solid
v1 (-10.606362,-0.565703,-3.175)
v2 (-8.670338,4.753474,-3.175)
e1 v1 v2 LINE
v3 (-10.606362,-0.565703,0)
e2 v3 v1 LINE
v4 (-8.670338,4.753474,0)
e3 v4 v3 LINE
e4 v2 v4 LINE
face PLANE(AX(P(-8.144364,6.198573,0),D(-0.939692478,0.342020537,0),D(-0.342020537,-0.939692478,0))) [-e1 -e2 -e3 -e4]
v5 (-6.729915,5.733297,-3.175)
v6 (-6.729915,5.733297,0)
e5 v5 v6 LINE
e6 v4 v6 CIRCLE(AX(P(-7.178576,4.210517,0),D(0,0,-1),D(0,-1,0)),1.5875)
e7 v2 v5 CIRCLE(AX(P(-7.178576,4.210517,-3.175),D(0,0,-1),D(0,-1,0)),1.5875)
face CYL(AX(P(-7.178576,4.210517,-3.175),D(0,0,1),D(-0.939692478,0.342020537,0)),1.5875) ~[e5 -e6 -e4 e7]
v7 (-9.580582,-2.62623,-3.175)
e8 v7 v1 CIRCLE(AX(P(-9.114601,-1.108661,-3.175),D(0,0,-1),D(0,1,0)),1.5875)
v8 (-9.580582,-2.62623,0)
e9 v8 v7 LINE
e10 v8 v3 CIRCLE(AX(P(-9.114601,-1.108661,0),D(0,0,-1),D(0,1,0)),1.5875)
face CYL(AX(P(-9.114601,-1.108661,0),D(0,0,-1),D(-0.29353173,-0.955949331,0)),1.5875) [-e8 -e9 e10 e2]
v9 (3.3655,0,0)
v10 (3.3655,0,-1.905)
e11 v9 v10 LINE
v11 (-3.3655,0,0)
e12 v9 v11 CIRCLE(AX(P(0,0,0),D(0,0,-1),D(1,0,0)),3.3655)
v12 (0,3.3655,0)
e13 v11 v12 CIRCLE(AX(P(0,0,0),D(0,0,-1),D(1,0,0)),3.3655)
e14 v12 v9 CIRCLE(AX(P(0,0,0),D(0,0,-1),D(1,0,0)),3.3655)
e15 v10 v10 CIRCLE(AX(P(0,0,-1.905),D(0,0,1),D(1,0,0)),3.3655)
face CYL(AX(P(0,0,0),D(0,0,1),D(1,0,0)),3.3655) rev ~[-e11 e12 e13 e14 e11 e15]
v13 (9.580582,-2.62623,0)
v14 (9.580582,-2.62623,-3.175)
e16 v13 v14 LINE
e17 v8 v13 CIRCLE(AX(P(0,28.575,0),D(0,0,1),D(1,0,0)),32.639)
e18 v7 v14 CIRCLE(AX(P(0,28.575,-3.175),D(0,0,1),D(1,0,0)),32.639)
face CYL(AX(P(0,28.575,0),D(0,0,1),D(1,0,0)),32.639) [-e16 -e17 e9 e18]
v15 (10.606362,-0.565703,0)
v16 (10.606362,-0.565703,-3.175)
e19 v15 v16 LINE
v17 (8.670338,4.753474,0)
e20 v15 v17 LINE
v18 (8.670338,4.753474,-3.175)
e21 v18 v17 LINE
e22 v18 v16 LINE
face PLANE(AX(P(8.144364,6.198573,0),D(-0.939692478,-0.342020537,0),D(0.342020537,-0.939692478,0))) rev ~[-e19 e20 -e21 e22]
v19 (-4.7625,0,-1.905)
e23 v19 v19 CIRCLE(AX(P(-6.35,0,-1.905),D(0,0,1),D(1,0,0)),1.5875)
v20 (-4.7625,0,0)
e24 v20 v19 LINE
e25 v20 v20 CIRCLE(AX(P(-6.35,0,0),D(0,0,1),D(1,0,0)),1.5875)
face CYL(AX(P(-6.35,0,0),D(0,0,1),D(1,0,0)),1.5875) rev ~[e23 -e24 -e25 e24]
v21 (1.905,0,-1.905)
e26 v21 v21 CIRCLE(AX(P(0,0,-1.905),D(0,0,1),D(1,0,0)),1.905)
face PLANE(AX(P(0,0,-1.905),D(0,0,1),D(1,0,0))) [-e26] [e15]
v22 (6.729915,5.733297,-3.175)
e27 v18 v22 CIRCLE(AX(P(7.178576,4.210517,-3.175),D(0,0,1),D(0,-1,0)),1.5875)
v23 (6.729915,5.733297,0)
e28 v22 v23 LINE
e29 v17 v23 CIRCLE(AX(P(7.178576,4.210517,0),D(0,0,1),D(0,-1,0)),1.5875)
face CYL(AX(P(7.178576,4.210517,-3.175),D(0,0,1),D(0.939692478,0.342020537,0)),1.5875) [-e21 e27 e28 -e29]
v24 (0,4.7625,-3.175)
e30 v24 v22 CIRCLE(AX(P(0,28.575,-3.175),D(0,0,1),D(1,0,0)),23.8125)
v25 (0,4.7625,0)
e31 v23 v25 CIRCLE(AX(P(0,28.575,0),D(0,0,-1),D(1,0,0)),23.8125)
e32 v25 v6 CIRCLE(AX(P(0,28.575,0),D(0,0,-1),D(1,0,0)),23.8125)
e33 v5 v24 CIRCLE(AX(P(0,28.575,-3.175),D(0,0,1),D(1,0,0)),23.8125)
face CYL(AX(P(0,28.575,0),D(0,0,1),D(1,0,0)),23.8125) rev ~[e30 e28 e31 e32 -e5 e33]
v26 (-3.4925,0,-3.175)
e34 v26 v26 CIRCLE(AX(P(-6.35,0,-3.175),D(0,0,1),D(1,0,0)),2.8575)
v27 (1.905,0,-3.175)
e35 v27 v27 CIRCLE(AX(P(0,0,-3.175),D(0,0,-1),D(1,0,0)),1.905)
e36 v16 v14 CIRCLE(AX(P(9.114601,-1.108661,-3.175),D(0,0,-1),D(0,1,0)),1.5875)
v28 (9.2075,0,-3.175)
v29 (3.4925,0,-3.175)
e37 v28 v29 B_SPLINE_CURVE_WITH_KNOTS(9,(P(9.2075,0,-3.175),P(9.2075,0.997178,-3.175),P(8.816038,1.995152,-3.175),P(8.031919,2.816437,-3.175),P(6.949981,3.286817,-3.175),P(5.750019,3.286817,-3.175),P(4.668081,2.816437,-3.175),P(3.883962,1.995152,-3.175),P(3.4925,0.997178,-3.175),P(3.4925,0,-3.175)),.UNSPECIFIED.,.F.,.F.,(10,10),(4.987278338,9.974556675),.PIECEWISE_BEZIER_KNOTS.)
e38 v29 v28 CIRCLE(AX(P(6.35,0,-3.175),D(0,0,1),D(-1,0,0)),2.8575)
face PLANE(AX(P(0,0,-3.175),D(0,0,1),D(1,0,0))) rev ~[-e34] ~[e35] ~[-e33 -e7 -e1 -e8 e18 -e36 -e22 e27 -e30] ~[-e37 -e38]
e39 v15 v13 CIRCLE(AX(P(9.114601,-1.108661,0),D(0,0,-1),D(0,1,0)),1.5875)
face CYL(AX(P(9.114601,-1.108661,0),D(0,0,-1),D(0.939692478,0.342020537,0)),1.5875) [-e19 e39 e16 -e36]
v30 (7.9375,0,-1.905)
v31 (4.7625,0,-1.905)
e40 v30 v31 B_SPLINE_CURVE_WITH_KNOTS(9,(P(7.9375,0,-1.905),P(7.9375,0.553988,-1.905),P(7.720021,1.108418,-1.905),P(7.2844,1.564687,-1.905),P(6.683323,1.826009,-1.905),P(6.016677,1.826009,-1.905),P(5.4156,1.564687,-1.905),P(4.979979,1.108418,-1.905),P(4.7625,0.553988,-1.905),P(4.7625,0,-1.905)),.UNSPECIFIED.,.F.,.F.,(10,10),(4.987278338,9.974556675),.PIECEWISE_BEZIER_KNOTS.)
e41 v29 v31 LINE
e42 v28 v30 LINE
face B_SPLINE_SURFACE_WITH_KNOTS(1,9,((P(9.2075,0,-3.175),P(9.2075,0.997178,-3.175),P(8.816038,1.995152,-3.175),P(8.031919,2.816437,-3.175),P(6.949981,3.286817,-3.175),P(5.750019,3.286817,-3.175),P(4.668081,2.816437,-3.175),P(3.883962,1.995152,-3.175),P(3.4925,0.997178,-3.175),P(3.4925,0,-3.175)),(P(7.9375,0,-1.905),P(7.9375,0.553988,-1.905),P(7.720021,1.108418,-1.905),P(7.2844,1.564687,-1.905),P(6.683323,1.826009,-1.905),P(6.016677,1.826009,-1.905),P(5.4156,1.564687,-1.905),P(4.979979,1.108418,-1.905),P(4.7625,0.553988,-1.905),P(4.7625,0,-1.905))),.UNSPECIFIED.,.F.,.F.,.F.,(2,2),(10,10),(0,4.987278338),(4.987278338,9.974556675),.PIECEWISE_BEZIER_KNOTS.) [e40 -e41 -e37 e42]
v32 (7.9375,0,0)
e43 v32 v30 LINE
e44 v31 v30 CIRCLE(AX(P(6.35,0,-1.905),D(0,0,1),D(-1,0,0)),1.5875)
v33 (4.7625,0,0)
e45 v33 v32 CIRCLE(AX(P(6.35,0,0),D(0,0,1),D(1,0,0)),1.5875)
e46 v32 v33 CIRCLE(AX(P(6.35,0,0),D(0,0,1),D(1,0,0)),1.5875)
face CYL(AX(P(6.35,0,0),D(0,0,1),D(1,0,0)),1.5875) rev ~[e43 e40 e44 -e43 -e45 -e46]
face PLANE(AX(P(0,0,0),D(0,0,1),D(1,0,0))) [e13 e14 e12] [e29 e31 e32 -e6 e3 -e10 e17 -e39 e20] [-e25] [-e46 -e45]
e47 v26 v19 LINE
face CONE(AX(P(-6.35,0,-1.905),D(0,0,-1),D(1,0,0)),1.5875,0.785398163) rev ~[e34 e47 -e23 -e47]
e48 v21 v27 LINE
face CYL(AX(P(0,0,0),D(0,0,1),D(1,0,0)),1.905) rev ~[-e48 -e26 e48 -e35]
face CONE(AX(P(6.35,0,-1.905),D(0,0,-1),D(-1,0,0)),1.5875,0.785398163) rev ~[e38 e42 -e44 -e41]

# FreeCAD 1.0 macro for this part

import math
import FreeCAD as App
import Part
import Sketcher
Q = App.Units.Quantity


def edges_at(feature, points):
    """Names of the edges that pass closest to the given points."""
    edges = feature.Shape.Edges
    near = lambda p: min(range(len(edges)), key=lambda i: edges[i].distToShape(Part.Vertex(*p))[0])
    return sorted({f"Edge{near(p) + 1}" for p in points})

doc = App.newDocument("Part")
body = doc.addObject("PartDesign::Body", "Body")

sketch1 = body.newObject("Sketcher::SketchObject", "Sketch")
sketch1.AttachmentSupport = (doc.getObject("XY_Plane"), [""])
sketch1.MapMode = "FlatFace"
sketch1.addGeometry([
    Part.LineSegment(App.Vector(11.2, -2.1, 0), App.Vector(0, 28.6, 0)),
    Part.LineSegment(App.Vector(0, 28.6, 0), App.Vector(-11.2, -2.1, 0)),
    Part.ArcOfCircle(Part.Circle(App.Vector(0, 28.6, 0), App.Vector(0, 0, 1), 32.6), math.radians(-110), math.radians(-70)),
    Part.Circle(App.Vector(0, 0, 0), App.Vector(0, 0, 1), 1.9),
    Part.Circle(App.Vector(-6.3, 0, 0), App.Vector(0, 0, 1), 1.6),
    Part.Circle(App.Vector(6.3, 0, 0), App.Vector(0, 0, 1), 1.6),
], False)
sketch1.addConstraint([
    Sketcher.Constraint("Coincident", 0, 2, 1, 1),
    Sketcher.Constraint("Coincident", 1, 2, 2, 1),
    Sketcher.Constraint("Coincident", 2, 2, 0, 1),
    Sketcher.Constraint("Coincident", 3, 3, -1, 1),
    Sketcher.Constraint("Coincident", 0, 2, 2, 3),
    Sketcher.Constraint("Equal", 4, 5),
    Sketcher.Constraint("Symmetric", 4, 3, 5, 3, -1, 1),
    Sketcher.Constraint("Symmetric", 1, 2, 2, 2, -2),
    Sketcher.Constraint("PointOnObject", 4, 3, -1),
    Sketcher.Constraint("Diameter", 3, Q("0.15 in")),
    Sketcher.Constraint("Diameter", 4, Q("0.125 in")),
    Sketcher.Constraint("Radius", 2, Q("1.285 in")),
    Sketcher.Constraint("DistanceX", 4, 3, 5, 3, Q("0.5 in")),
    Sketcher.Constraint("DistanceY", -1, 1, 2, 3, Q("1.125 in")),
    Sketcher.Constraint("Angle", 0, Q("110 deg")),
])
pad1 = body.newObject("PartDesign::Pad", "Pad")
pad1.Profile = sketch1
pad1.Length = Q("0.125 in")
pad1.Reversed = True

sketch2 = body.newObject("Sketcher::SketchObject", "Sketch001")
sketch2.AttachmentSupport = (doc.getObject("XY_Plane"), [""])
sketch2.MapMode = "FlatFace"
sketch2.addGeometry([
    Part.Circle(App.Vector(0, 0, 0), App.Vector(0, 0, 1), 3.4),
    Part.Circle(App.Vector(0, 0, 0), App.Vector(0, 0, 1), 1.9),
], False)
sketch2.addConstraint([
    Sketcher.Constraint("Coincident", 0, 3, -1, 1),
    Sketcher.Constraint("Coincident", 1, 3, -1, 1),
    Sketcher.Constraint("Diameter", 1, Q("0.15 in")),
    Sketcher.Constraint("Diameter", 0, Q("0.265 in")),
])
pocket1 = body.newObject("PartDesign::Pocket", "Pocket")
pocket1.Profile = sketch2
pocket1.Length = Q("0.075 in")

sketch3 = body.newObject("Sketcher::SketchObject", "Sketch002")
sketch3.AttachmentSupport = (doc.getObject("XY_Plane"), [""])
sketch3.MapMode = "FlatFace"
sketch3.addGeometry(Part.Circle(App.Vector(0, 29, 0), App.Vector(0, 0, 1), 24), False)
sketch3.addConstraint([
    Sketcher.Constraint("PointOnObject", 0, 3, -2),
    Sketcher.Constraint("Diameter", 0, Q("1.875 in")),
    Sketcher.Constraint("DistanceY", -1, 1, 0, 3, Q("1.125 in")),
])
pocket2 = body.newObject("PartDesign::Pocket", "Pocket001")
pocket2.Profile = sketch3
pocket2.Type = "ThroughAll"
doc.recompute()

chamfer = body.newObject("PartDesign::Chamfer", "Chamfer")
chamfer.Base = (pocket2, edges_at(pocket2, [(4.763, 0, -3.175), (-7.938, 0, -3.175)]))
chamfer.Size = Q("0.05 in")
doc.recompute()

fillet = body.newObject("PartDesign::Fillet", "Fillet")
fillet.Base = (chamfer, edges_at(chamfer, [
    (8.144, 6.199, -1.587),
    (11.163, -2.096, -1.587),
    (-8.144, 6.199, -1.587),
    (-11.163, -2.096, -1.587),
]))
fillet.Radius = Q("0.0625 in")

doc.recompute()
